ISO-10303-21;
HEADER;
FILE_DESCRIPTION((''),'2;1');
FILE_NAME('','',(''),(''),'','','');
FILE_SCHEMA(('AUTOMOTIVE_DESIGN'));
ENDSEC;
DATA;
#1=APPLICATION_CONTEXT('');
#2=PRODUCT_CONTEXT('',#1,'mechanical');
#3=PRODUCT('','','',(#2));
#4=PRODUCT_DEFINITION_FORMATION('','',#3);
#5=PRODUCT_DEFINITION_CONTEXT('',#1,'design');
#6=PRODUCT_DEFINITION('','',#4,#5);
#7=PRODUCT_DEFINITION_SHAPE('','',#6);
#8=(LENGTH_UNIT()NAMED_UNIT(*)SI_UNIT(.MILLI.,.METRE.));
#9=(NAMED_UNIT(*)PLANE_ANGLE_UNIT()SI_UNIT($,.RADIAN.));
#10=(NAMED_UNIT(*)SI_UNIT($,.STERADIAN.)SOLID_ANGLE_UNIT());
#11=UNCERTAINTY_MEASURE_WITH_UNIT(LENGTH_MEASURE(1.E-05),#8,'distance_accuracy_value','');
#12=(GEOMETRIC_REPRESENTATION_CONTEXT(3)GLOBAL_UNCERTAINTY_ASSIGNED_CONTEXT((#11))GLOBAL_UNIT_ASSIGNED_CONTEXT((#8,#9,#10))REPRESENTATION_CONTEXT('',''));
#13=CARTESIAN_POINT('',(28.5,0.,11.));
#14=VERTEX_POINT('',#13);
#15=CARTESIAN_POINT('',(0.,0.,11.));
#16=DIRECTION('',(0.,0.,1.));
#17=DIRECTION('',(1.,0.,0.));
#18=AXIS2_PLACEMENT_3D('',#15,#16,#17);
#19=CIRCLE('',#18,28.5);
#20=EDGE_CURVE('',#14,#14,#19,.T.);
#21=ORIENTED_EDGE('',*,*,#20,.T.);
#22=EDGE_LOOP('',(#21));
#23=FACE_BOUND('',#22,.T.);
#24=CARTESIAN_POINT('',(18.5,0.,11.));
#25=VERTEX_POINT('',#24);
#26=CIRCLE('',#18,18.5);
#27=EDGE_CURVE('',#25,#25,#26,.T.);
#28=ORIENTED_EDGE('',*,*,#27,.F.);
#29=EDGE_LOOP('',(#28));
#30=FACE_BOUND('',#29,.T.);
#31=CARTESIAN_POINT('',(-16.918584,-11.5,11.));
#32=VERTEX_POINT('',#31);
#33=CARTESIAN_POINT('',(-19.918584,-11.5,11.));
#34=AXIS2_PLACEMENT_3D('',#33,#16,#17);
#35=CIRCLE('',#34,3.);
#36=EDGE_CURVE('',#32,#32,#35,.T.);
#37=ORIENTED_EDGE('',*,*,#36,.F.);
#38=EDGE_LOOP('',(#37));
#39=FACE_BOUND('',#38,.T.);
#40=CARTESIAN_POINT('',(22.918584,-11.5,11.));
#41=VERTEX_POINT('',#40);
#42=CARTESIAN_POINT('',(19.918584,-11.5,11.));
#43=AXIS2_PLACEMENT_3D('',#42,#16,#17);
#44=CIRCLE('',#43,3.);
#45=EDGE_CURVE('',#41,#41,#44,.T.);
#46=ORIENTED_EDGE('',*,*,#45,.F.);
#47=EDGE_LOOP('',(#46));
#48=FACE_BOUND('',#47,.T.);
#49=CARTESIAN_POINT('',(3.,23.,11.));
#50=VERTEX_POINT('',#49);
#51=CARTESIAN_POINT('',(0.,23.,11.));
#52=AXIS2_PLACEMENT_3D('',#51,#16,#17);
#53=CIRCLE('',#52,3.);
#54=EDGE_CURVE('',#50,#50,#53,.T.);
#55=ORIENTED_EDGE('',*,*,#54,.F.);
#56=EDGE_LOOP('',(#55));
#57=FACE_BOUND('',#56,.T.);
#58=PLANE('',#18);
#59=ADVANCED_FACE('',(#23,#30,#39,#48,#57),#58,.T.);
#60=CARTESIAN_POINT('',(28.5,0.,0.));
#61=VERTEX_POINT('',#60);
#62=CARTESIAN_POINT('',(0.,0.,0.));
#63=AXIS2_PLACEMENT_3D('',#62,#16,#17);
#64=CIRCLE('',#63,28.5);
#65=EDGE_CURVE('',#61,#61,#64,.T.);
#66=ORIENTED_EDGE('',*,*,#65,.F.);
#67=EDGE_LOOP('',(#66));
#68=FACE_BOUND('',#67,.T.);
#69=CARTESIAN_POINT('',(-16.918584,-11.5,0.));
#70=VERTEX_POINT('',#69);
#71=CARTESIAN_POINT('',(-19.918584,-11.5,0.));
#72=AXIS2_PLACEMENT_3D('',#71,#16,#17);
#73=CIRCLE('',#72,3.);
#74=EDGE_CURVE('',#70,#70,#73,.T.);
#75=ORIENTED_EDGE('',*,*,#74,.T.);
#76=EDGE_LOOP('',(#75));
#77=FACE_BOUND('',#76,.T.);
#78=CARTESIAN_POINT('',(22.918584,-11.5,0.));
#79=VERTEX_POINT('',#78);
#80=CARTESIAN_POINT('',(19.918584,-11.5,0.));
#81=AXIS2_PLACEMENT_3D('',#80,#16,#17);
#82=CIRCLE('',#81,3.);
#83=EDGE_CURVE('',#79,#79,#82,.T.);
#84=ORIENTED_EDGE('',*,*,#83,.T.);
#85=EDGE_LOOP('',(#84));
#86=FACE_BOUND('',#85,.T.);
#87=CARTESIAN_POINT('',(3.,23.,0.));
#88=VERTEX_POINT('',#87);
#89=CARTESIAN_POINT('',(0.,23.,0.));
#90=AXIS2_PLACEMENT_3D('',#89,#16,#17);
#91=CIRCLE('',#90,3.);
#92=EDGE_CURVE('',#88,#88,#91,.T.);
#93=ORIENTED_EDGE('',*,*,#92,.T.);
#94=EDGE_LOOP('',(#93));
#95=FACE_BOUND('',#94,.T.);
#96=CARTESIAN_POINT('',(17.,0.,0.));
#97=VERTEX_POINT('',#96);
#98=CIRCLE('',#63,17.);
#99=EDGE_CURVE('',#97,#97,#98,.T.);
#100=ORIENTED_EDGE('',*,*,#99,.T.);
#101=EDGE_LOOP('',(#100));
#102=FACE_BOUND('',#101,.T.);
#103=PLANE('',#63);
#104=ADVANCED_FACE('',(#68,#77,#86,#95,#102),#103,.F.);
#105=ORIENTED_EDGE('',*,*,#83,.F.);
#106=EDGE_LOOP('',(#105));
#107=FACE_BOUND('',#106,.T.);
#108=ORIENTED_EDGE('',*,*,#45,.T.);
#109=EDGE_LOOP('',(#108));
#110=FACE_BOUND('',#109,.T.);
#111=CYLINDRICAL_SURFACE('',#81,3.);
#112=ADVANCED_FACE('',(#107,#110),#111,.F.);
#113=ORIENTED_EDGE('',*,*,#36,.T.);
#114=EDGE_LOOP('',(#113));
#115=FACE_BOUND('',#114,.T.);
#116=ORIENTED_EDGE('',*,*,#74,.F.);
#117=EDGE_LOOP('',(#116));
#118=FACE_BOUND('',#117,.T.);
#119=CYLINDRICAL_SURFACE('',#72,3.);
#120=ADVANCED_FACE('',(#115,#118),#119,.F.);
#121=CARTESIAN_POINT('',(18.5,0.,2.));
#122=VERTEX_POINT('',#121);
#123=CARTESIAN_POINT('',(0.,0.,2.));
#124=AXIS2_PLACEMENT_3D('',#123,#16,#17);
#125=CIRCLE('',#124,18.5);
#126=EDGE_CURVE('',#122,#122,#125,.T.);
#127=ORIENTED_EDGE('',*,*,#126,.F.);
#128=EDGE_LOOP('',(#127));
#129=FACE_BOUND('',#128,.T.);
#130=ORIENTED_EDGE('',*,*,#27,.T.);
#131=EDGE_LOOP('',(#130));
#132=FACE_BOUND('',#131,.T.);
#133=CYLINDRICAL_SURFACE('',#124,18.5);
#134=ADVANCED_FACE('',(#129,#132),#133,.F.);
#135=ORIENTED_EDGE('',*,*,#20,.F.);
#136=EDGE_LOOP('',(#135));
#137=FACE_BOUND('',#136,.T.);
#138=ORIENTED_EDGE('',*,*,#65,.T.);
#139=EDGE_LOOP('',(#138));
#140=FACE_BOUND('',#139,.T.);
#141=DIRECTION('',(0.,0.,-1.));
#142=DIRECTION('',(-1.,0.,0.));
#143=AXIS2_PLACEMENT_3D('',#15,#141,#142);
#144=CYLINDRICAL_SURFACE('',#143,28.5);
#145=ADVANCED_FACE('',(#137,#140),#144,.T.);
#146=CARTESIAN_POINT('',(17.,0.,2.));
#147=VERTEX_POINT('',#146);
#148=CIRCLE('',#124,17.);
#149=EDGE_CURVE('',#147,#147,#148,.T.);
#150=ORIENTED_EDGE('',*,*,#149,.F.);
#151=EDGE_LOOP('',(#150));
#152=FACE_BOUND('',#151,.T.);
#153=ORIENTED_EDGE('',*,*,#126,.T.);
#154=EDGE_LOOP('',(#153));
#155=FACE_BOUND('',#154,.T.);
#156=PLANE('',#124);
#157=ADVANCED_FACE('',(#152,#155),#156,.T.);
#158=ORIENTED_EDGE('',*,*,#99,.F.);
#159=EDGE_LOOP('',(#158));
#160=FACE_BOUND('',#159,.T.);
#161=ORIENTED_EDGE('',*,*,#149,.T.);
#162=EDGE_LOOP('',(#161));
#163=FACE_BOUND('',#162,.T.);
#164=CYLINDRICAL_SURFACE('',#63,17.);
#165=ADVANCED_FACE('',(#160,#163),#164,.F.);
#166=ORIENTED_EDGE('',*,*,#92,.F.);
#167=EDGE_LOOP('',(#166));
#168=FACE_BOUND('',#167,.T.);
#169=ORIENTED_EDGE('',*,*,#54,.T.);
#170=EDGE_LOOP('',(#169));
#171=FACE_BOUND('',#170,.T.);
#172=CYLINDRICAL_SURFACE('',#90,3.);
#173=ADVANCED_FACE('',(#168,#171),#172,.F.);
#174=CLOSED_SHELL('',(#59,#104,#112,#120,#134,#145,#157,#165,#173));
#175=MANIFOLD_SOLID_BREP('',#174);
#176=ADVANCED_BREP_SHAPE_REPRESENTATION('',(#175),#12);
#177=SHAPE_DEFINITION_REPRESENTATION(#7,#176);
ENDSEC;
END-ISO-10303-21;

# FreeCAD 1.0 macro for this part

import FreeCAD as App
import Part
import Sketcher
Q = App.Units.Quantity

doc = App.newDocument("Part")
body = doc.addObject("PartDesign::Body", "Body")

sketch1 = body.newObject("Sketcher::SketchObject", "Sketch")
sketch1.AttachmentSupport = (doc.getObject("XY_Plane"), [""])
sketch1.MapMode = "FlatFace"
sketch1.addGeometry(Part.Circle(App.Vector(0, 0, 0), App.Vector(0, 0, 1), 28), False)
sketch1.addConstraint([
    Sketcher.Constraint("Coincident", 0, 3, -1, 1),
    Sketcher.Constraint("Diameter", 0, Q("57 mm")),
])
pad1 = body.newObject("PartDesign::Pad", "Pad")
pad1.Profile = sketch1
pad1.Length = 11

sketch2 = body.newObject("Sketcher::SketchObject", "Sketch001")
sketch2.AttachmentSupport = (doc.getObject("XY_Plane"), [""])
sketch2.MapMode = "FlatFace"
sketch2.AttachmentOffset = App.Placement(App.Vector(0, 0, 11), App.Rotation())
sketch2.addGeometry(Part.Circle(App.Vector(0, 0, 0), App.Vector(0, 0, 1), 18), False)
sketch2.addConstraint([
    Sketcher.Constraint("Coincident", 0, 3, -1, 1),
    Sketcher.Constraint("Diameter", 0, Q("37 mm")),
])
pocket1 = body.newObject("PartDesign::Pocket", "Pocket")
pocket1.Profile = sketch2
pocket1.Length = 9

sketch3 = body.newObject("Sketcher::SketchObject", "Sketch002")
sketch3.AttachmentSupport = (doc.getObject("XY_Plane"), [""])
sketch3.MapMode = "FlatFace"
sketch3.AttachmentOffset = App.Placement(App.Vector(0, 0, 2), App.Rotation())
sketch3.addGeometry(Part.Circle(App.Vector(0, 0, 0), App.Vector(0, 0, 1), 17), False)
sketch3.addConstraint([
    Sketcher.Constraint("Coincident", 0, 3, -1, 1),
    Sketcher.Constraint("Diameter", 0, Q("34 mm")),
])
pocket2 = body.newObject("PartDesign::Pocket", "Pocket001")
pocket2.Profile = sketch3
pocket2.Type = "ThroughAll"

sketch4 = body.newObject("Sketcher::SketchObject", "Sketch003")
sketch4.AttachmentSupport = (doc.getObject("XY_Plane"), [""])
sketch4.MapMode = "FlatFace"
sketch4.AttachmentOffset = App.Placement(App.Vector(0, 0, 11), App.Rotation())
sketch4.addGeometry([
    Part.Circle(App.Vector(0, 23, 0), App.Vector(0, 0, 1), 3),
    Part.Circle(App.Vector(19.9, -11.5, 0), App.Vector(0, 0, 1), 3),
    Part.Circle(App.Vector(-19.9, -11.5, 0), App.Vector(0, 0, 1), 3),
], False)
sketch4.addConstraint([
    Sketcher.Constraint("Equal", 0, 1),
    Sketcher.Constraint("Equal", 1, 2),
    Sketcher.Constraint("Symmetric", 1, 3, 2, 3, -2),
    Sketcher.Constraint("PointOnObject", 0, 3, -2),
    Sketcher.Constraint("Diameter", 0, Q("6 mm")),
    Sketcher.Constraint("DistanceY", -1, 1, 0, 3, Q("23 mm")),
    Sketcher.Constraint("DistanceY", 1, 3, -1, 1, Q("11.5 mm")),
    Sketcher.Constraint("DistanceX", 2, 3, 1, 3, Q("39.837169 mm")),
])
pocket3 = body.newObject("PartDesign::Pocket", "Pocket002")
pocket3.Profile = sketch4
pocket3.Type = "ThroughAll"

doc.recompute()
